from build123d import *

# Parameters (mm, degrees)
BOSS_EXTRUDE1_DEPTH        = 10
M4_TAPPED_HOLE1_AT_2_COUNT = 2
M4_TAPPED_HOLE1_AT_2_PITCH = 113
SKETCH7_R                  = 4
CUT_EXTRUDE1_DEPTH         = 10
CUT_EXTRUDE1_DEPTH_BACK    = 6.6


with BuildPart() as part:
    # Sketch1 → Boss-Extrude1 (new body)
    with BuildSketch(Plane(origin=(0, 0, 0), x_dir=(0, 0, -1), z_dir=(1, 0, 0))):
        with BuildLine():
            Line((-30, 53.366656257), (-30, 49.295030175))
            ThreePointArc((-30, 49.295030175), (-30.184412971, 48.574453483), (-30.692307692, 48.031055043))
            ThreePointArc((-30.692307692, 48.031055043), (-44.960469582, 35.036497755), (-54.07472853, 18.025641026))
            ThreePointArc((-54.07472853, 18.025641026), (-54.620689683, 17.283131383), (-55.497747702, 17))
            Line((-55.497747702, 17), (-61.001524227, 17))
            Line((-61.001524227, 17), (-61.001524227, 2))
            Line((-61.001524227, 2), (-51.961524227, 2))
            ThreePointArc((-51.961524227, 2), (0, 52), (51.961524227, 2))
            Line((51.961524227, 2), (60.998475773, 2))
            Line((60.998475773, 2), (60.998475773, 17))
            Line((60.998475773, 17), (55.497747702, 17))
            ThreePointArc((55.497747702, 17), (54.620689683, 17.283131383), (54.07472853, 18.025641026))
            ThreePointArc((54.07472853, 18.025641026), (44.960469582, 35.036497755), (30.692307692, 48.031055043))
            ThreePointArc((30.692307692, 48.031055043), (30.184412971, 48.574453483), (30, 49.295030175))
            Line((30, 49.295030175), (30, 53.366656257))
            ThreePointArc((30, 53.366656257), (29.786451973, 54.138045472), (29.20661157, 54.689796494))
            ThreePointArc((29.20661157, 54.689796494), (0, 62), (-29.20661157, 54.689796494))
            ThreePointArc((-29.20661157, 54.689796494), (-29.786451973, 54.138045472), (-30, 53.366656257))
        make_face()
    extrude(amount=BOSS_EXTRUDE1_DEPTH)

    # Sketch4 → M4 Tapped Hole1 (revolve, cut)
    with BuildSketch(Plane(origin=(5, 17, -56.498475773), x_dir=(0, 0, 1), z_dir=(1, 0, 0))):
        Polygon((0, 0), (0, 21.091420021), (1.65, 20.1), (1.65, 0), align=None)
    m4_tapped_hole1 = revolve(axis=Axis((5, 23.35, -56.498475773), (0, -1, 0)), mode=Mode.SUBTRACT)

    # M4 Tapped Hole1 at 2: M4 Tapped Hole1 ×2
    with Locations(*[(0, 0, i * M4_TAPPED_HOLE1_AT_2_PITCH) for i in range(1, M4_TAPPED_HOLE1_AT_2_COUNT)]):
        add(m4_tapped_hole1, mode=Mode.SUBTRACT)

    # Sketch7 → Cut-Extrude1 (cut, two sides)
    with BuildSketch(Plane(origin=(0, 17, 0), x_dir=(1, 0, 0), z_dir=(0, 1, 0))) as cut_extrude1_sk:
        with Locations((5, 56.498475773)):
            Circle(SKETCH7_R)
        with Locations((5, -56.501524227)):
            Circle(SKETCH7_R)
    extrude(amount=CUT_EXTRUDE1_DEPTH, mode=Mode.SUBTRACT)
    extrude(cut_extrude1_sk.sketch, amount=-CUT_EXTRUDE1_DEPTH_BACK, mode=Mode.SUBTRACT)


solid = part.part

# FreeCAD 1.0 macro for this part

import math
import FreeCAD as App
import Part
import Sketcher

V = App.Vector
Q = App.Units.Quantity

doc = App.newDocument("Part")
params = doc.addObject("Spreadsheet::Sheet", "Params")
for row, (alias, value) in enumerate([
    ("sketch1_radius", "57 mm"),
    ("sketch1_radius2", "52 mm"),
    ("sketch1_radius3", "62 mm"),
    ("sketch1_radius4", "1.5 mm"),
    ("sketch1_width", "15 mm"),
    ("pad1_length", "10 mm"),
    ("sketch2_width", "20.1 mm"),
    ("sketch2_height", "1.65 mm"),
    ("groove_angle", "360 deg"),
    ("linearpattern_pitch", "113 mm"),
    ("sketch3_diameter", "8 mm"),
    ("pocket1_length", "10 mm"),
    ("pocket1_length2", "6.6 mm"),
], start=1):
    params.set(f"A{row}", alias)
    params.set(f"B{row}", "=" + value)
    params.setAlias(f"B{row}", alias)

body = doc.addObject("PartDesign::Body", "Body")

# Sketch on YZ plane
sketch1 = doc.addObject("Sketcher::SketchObject", "Sketch")
body.addObject(sketch1)
sketch1.AttachmentSupport = (doc.YZ_Plane, [""])
sketch1.MapMode = "FlatFace"
sketch1.addGeometry(Part.LineSegment(V(53.4, 30, 0), V(49.3, 30, 0)), False)
sketch1.addGeometry(Part.ArcOfCircle(Part.Circle(V(49.3, 31.5, 0), V(0, 0, 1), 1.5), math.radians(-147), math.radians(-90)), False)
sketch1.addGeometry(Part.ArcOfCircle(Part.Circle(V(0, 0, 0), V(0, 0, 1), 57), math.radians(33), math.radians(72)), False)
sketch1.addGeometry(Part.ArcOfCircle(Part.Circle(V(18.5, 55.5, 0), V(0, 0, 1), 1.5), math.radians(180), math.radians(252)), False)
sketch1.addGeometry(Part.LineSegment(V(17, 55.5, 0), V(17, 61, 0)), False)
sketch1.addGeometry(Part.LineSegment(V(17, 61, 0), V(2, 61, 0)), False)
sketch1.addGeometry(Part.LineSegment(V(2, 61, 0), V(2, 52, 0)), False)
sketch1.addGeometry(Part.ArcOfCircle(Part.Circle(V(0, 0, 0), V(0, 0, 1), 52), math.radians(-88), math.radians(88)), False)
sketch1.addGeometry(Part.LineSegment(V(2, -52, 0), V(2, -61, 0)), False)
sketch1.addGeometry(Part.LineSegment(V(2, -61, 0), V(17, -61, 0)), False)
sketch1.addGeometry(Part.LineSegment(V(17, -61, 0), V(17, -55.5, 0)), False)
sketch1.addGeometry(Part.ArcOfCircle(Part.Circle(V(18.5, -55.5, 0), V(0, 0, 1), 1.5), math.radians(108), math.radians(180)), False)
sketch1.addGeometry(Part.ArcOfCircle(Part.Circle(V(0, 0, 0), V(0, 0, 1), 57), math.radians(-72), math.radians(-33)), False)
sketch1.addGeometry(Part.ArcOfCircle(Part.Circle(V(49.3, -31.5, 0), V(0, 0, 1), 1.5), math.radians(90), math.radians(147)), False)
sketch1.addGeometry(Part.LineSegment(V(49.3, -30, 0), V(53.4, -30, 0)), False)
sketch1.addGeometry(Part.ArcOfCircle(Part.Circle(V(53.4, -28.5, 0), V(0, 0, 1), 1.5), math.radians(-90), math.radians(-28)), False)
sketch1.addGeometry(Part.ArcOfCircle(Part.Circle(V(0, 0, 0), V(0, 0, 1), 62), math.radians(-28), math.radians(28)), False)
sketch1.addGeometry(Part.ArcOfCircle(Part.Circle(V(53.4, 28.5, 0), V(0, 0, 1), 1.5), math.radians(28), math.radians(90)), False)
sketch1.addConstraint(Sketcher.Constraint("Tangent", 0, 2, 1, 2))
sketch1.addConstraint(Sketcher.Constraint("Tangent", 1, 1, 2, 1))
sketch1.addConstraint(Sketcher.Constraint("Tangent", 2, 2, 3, 2))
sketch1.addConstraint(Sketcher.Constraint("Tangent", 3, 1, 4, 1))
sketch1.addConstraint(Sketcher.Constraint("Coincident", 4, 2, 5, 1))
sketch1.addConstraint(Sketcher.Constraint("Coincident", 5, 2, 6, 1))
sketch1.addConstraint(Sketcher.Constraint("Coincident", 6, 2, 7, 2))
sketch1.addConstraint(Sketcher.Constraint("Coincident", 7, 1, 8, 1))
sketch1.addConstraint(Sketcher.Constraint("Coincident", 8, 2, 9, 1))
sketch1.addConstraint(Sketcher.Constraint("Coincident", 9, 2, 10, 1))
sketch1.addConstraint(Sketcher.Constraint("Tangent", 10, 2, 11, 2))
sketch1.addConstraint(Sketcher.Constraint("Tangent", 11, 1, 12, 1))
sketch1.addConstraint(Sketcher.Constraint("Tangent", 12, 2, 13, 2))
sketch1.addConstraint(Sketcher.Constraint("Tangent", 13, 1, 14, 1))
sketch1.addConstraint(Sketcher.Constraint("Tangent", 14, 2, 15, 1))
sketch1.addConstraint(Sketcher.Constraint("Tangent", 15, 2, 16, 1))
sketch1.addConstraint(Sketcher.Constraint("Tangent", 16, 2, 17, 1))
sketch1.addConstraint(Sketcher.Constraint("Tangent", 17, 2, 0, 1))
sketch1.addConstraint(Sketcher.Constraint("Horizontal", 0))
sketch1.addConstraint(Sketcher.Constraint("Vertical", 4))
sketch1.addConstraint(Sketcher.Constraint("Horizontal", 5))
sketch1.addConstraint(Sketcher.Constraint("Vertical", 6))
sketch1.addConstraint(Sketcher.Constraint("Vertical", 8))
sketch1.addConstraint(Sketcher.Constraint("Horizontal", 9))
sketch1.addConstraint(Sketcher.Constraint("Vertical", 10))
sketch1.addConstraint(Sketcher.Constraint("Horizontal", 14))
sketch1.addConstraint(Sketcher.Constraint("Coincident", 2, 3, -1, 1))
sketch1.addConstraint(Sketcher.Constraint("Coincident", 7, 3, -1, 1))
sketch1.addConstraint(Sketcher.Constraint("Coincident", 12, 3, -1, 1))
sketch1.addConstraint(Sketcher.Constraint("Coincident", 16, 3, -1, 1))
sketch1.addConstraint(Sketcher.Constraint("Equal", 1, 3))
sketch1.addConstraint(Sketcher.Constraint("Equal", 3, 11))
sketch1.addConstraint(Sketcher.Constraint("Equal", 2, 12))
sketch1.addConstraint(Sketcher.Constraint("Equal", 11, 13))
sketch1.addConstraint(Sketcher.Constraint("Equal", 13, 15))
sketch1.addConstraint(Sketcher.Constraint("Equal", 15, 17))
sketch1.addConstraint(Sketcher.Constraint("Vertical", 3, 3, 11, 3))
sketch1.addConstraint(Sketcher.Constraint("Vertical", 1, 3, 13, 3))
sketch1.addConstraint(Sketcher.Constraint("Vertical", 6, 2, 7, 1))
sketch1.addConstraint(Sketcher.Constraint("Radius", 2, Q("57 mm")))
sketch1.addConstraint(Sketcher.Constraint("Radius", 7, Q("52 mm")))
sketch1.addConstraint(Sketcher.Constraint("Radius", 16, Q("62 mm")))
sketch1.addConstraint(Sketcher.Constraint("Radius", 1, Q("1.5 mm")))
sketch1.addConstraint(Sketcher.Constraint("DistanceX", 5, 2, 5, 1, Q("15 mm")))
sketch1.addConstraint(Sketcher.Constraint("DistanceY", -1, 1, 0, 2, Q("30 mm")))
sketch1.addConstraint(Sketcher.Constraint("DistanceX", -1, 1, 3, 1, Q("17 mm")))
sketch1.addConstraint(Sketcher.Constraint("DistanceY", 6, 2, 6, 1, Q("9.04 mm")))
sketch1.addConstraint(Sketcher.Constraint("DistanceY", 8, 2, 8, 1, Q("9.036952 mm")))
sketch1.setExpression("Constraints[39]", "Params.sketch1_radius")
sketch1.setExpression("Constraints[40]", "Params.sketch1_radius2")
sketch1.setExpression("Constraints[41]", "Params.sketch1_radius3")
sketch1.setExpression("Constraints[42]", "Params.sketch1_radius4")
sketch1.setExpression("Constraints[43]", "Params.sketch1_width")
pad1 = doc.addObject("PartDesign::Pad", "Pad")
body.addObject(pad1)
pad1.Profile = sketch1
pad1.setExpression("Length", "Params.pad1_length")

# Sketch on YZ plane
sketch2 = doc.addObject("Sketcher::SketchObject", "Sketch001")
body.addObject(sketch2)
sketch2.AttachmentSupport = (doc.YZ_Plane, [""])
sketch2.MapMode = "FlatFace"
sketch2.AttachmentOffset = App.Placement(V(0, 0, 5), App.Rotation())
sketch2.addGeometry(Part.LineSegment(V(-4.1, -56.5, 0), V(17, -56.5, 0)), False)
sketch2.addGeometry(Part.LineSegment(V(17, -56.5, 0), V(17, -54.8, 0)), False)
sketch2.addGeometry(Part.LineSegment(V(17, -54.8, 0), V(-3.1, -54.8, 0)), False)
sketch2.addGeometry(Part.LineSegment(V(-3.1, -54.8, 0), V(-4.1, -56.5, 0)), False)
sketch2.addGeometry(Part.LineSegment(V(17, -56.5, 0), V(-4.1, -56.5, 0)), True)  # axis
sketch2.addConstraint(Sketcher.Constraint("Coincident", 0, 2, 1, 1))
sketch2.addConstraint(Sketcher.Constraint("Coincident", 1, 2, 2, 1))
sketch2.addConstraint(Sketcher.Constraint("Coincident", 2, 2, 3, 1))
sketch2.addConstraint(Sketcher.Constraint("Coincident", 3, 2, 0, 1))
sketch2.addConstraint(Sketcher.Constraint("Horizontal", 0))
sketch2.addConstraint(Sketcher.Constraint("Vertical", 1))
sketch2.addConstraint(Sketcher.Constraint("Horizontal", 2))
sketch2.addConstraint(Sketcher.Constraint("Horizontal", 4))
sketch2.addConstraint(Sketcher.Constraint("Coincident", 4, 1, 0, 2))
sketch2.addConstraint(Sketcher.Constraint("Equal", 0, 4))
sketch2.addConstraint(Sketcher.Constraint("Angle", 3, Q("-121 deg")))
sketch2.addConstraint(Sketcher.Constraint("DistanceX", 2, 2, 2, 1, Q("20.1 mm")))
sketch2.addConstraint(Sketcher.Constraint("DistanceX", -1, 1, 0, 2, Q("17 mm")))
sketch2.addConstraint(Sketcher.Constraint("DistanceY", 1, 1, 1, 2, Q("1.65 mm")))
sketch2.addConstraint(Sketcher.Constraint("DistanceY", 0, 2, -1, 1, Q("56.498476 mm")))
sketch2.setExpression("Constraints[11]", "Params.sketch2_width")
sketch2.setExpression("Constraints[13]", "Params.sketch2_height")
groove = doc.addObject("PartDesign::Groove", "Groove")
body.addObject(groove)
groove.Profile = sketch2
groove.ReferenceAxis = (sketch2, ["Axis0"])
groove.setExpression("Angle", "Params.groove_angle")
doc.recompute()

linearpattern = doc.addObject("PartDesign::LinearPattern", "LinearPattern")
body.addObject(linearpattern)
linearpattern.Originals = [groove]
linearpattern.Direction = (doc.Z_Axis, [""])
linearpattern.Mode = "offset"
linearpattern.setExpression("Offset", "Params.linearpattern_pitch")
linearpattern.Occurrences = 2
body.Tip = linearpattern

# Sketch on XZ plane
sketch3 = doc.addObject("Sketcher::SketchObject", "Sketch002")
body.addObject(sketch3)
sketch3.AttachmentSupport = (doc.XZ_Plane, [""])
sketch3.MapMode = "FlatFace"
sketch3.AttachmentOffset = App.Placement(V(0, 0, -17), App.Rotation())
sketch3.addGeometry(Part.Circle(V(5, -56.5, 0), V(0, 0, 1), 4), False)
sketch3.addGeometry(Part.Circle(V(5, 56.5, 0), V(0, 0, 1), 4), False)
sketch3.addConstraint(Sketcher.Constraint("Equal", 0, 1))
sketch3.addConstraint(Sketcher.Constraint("Vertical", 0, 3, 1, 3))
sketch3.addConstraint(Sketcher.Constraint("Diameter", 0, Q("8 mm")))
sketch3.addConstraint(Sketcher.Constraint("DistanceX", -1, 1, 0, 3, Q("5 mm")))
sketch3.addConstraint(Sketcher.Constraint("DistanceY", 0, 3, 1, 3, Q("113 mm")))
sketch3.addConstraint(Sketcher.Constraint("DistanceY", 0, 3, -1, 1, Q("56.498476 mm")))
sketch3.setExpression("Constraints[2]", "Params.sketch3_diameter")
pocket1 = doc.addObject("PartDesign::Pocket", "Pocket")
body.addObject(pocket1)
pocket1.Profile = sketch3
pocket1.Type = "TwoLengths"
pocket1.setExpression("Length", "Params.pocket1_length")
pocket1.setExpression("Length2", "Params.pocket1_length2")

doc.recompute()
